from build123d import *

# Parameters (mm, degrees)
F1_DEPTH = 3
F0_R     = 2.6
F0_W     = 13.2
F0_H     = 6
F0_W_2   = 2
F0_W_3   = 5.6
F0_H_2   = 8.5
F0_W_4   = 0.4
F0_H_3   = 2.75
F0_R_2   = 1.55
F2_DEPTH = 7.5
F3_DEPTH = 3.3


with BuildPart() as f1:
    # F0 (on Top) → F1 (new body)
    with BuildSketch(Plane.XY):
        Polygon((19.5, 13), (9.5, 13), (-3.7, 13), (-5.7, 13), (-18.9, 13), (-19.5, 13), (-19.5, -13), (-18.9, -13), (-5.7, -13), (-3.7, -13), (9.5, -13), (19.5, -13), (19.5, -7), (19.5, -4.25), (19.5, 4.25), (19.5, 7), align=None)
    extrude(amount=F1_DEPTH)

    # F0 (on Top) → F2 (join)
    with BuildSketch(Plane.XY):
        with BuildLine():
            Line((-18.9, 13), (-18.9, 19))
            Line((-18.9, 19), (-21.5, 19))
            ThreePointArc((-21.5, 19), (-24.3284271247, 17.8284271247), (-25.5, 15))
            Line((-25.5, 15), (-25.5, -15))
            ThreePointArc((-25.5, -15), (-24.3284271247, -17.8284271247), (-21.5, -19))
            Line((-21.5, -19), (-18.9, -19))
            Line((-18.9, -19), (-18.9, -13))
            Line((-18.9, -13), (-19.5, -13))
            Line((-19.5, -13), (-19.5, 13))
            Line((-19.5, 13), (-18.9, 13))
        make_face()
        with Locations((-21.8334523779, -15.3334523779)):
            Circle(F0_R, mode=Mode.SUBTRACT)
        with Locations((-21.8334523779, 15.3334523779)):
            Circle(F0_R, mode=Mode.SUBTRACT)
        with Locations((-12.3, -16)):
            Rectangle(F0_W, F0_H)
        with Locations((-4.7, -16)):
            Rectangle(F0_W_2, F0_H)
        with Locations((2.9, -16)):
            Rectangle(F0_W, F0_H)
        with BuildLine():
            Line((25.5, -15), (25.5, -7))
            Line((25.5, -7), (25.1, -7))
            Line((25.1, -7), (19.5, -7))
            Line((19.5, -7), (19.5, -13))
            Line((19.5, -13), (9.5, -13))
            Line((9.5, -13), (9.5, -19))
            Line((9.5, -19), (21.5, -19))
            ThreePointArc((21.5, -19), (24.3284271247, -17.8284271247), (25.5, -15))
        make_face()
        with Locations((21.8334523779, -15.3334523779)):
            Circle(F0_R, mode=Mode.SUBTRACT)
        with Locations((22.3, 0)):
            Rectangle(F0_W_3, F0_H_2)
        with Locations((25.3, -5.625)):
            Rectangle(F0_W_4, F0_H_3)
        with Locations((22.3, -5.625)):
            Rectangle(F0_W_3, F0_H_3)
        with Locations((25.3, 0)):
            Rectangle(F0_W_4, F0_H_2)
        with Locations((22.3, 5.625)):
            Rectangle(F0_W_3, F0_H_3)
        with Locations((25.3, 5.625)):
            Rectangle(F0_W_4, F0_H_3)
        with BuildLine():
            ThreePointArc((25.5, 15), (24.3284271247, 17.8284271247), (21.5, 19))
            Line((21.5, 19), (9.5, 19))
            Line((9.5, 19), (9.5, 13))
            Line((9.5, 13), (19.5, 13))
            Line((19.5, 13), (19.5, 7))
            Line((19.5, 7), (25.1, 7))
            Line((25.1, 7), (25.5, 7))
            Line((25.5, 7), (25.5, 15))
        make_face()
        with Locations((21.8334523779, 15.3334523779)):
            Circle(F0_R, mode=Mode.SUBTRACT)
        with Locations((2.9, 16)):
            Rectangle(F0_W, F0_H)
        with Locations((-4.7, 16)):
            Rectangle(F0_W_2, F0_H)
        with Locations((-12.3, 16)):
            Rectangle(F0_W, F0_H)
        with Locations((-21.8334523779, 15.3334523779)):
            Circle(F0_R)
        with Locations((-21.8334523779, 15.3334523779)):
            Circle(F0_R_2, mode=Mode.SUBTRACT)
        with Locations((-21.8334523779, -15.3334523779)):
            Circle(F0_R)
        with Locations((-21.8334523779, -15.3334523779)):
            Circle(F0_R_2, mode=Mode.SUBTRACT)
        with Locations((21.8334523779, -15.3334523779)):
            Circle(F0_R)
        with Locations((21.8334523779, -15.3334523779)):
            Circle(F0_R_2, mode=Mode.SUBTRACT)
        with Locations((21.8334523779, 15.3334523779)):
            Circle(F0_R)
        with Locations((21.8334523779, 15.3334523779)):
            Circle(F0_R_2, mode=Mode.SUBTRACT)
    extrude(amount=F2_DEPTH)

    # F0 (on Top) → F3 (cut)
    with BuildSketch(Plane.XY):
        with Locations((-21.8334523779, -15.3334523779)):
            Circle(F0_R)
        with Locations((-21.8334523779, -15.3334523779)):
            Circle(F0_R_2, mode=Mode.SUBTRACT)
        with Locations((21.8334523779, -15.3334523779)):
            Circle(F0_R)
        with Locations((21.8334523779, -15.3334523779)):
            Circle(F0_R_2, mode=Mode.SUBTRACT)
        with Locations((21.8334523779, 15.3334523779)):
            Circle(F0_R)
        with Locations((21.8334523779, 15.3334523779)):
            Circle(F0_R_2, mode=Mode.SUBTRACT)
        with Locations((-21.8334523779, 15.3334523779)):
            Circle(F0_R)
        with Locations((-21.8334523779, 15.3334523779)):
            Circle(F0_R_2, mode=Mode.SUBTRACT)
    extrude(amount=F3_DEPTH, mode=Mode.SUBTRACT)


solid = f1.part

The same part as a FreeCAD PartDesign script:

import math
import FreeCAD as App
import Part
import Sketcher


def add_polygon(sketch, points):
    """Adds a closed chain of lines whose ends are joined by coincident constraints."""
    first, n = sketch.GeometryCount, len(points)
    for a, b in zip(points, points[1:] + points[:1]):
        sketch.addGeometry(Part.LineSegment(App.Vector(*a, 0), App.Vector(*b, 0)), False)
    for i in range(n):
        sketch.addConstraint(Sketcher.Constraint("Coincident", first + i, 2, first + (i + 1) % n, 1))

doc = App.newDocument("Part")
body = doc.addObject("PartDesign::Body", "Body")

# Sketch on XY plane
sketch1 = body.newObject("Sketcher::SketchObject", "Sketch")
sketch1.AttachmentSupport = (doc.getObject("XY_Plane"), [""])
sketch1.MapMode = "FlatFace"
add_polygon(sketch1, [(20, 13), (-20, 13), (-20, -13), (20, -13)])  # lines 0-3
sketch1.addConstraint([
    Sketcher.Constraint("Horizontal", 0),
    Sketcher.Constraint("Vertical", 1),
    Sketcher.Constraint("Horizontal", 2),
    Sketcher.Constraint("Vertical", 3),
    Sketcher.Constraint("Symmetric", 0, 2, 2, 2, -1, 1),
    Sketcher.Constraint("DistanceX", 0, 2, 0, 1, 39.0),
    Sketcher.Constraint("DistanceY", 1, 2, 1, 1, 26.0),
])
pad1 = body.newObject("PartDesign::Pad", "Pad")
pad1.Profile = sketch1
pad1.Length = 3

# Sketch on XY plane
sketch2 = body.newObject("Sketcher::SketchObject", "Sketch001")
sketch2.AttachmentSupport = (doc.getObject("XY_Plane"), [""])
sketch2.MapMode = "FlatFace"
sketch2.addGeometry(Part.ArcOfCircle(Part.Circle(App.Vector(-21.5, 15, 0), App.Vector(0, 0, 1), 4), math.radians(90), math.radians(180)), False)  # 0
sketch2.addGeometry(Part.LineSegment(App.Vector(-25.5, 15, 0), App.Vector(-25.5, -15, 0)), False)  # 1
sketch2.addGeometry(Part.ArcOfCircle(Part.Circle(App.Vector(-21.5, -15, 0), App.Vector(0, 0, 1), 4), math.radians(180), math.radians(270)), False)  # 2
sketch2.addGeometry(Part.LineSegment(App.Vector(-21.5, -19, 0), App.Vector(21.5, -19, 0)), False)  # 3
sketch2.addGeometry(Part.ArcOfCircle(Part.Circle(App.Vector(21.5, -15, 0), App.Vector(0, 0, 1), 4), math.radians(-90), math.radians(0)), False)  # 4
sketch2.addGeometry(Part.LineSegment(App.Vector(25.5, -15, 0), App.Vector(25.5, 15, 0)), False)  # 5
sketch2.addGeometry(Part.ArcOfCircle(Part.Circle(App.Vector(21.5, 15, 0), App.Vector(0, 0, 1), 4), math.radians(0), math.radians(90)), False)  # 6
sketch2.addGeometry(Part.LineSegment(App.Vector(21.5, 19, 0), App.Vector(-21.5, 19, 0)), False)  # 7
sketch2.addGeometry(Part.Circle(App.Vector(-21.8, -15.3, 0), App.Vector(0, 0, 1), 1.6), False)  # 8
sketch2.addGeometry(Part.Circle(App.Vector(21.8, -15.3, 0), App.Vector(0, 0, 1), 1.6), False)  # 9
sketch2.addGeometry(Part.Circle(App.Vector(-21.8, 15.3, 0), App.Vector(0, 0, 1), 1.6), False)  # 10
add_polygon(sketch2, [(19.5, 13), (19.5, -13), (-19.5, -13), (-19.5, 13)])  # lines 11-14
sketch2.addGeometry(Part.Circle(App.Vector(21.8, 15.3, 0), App.Vector(0, 0, 1), 1.6), False)  # 15
sketch2.addConstraint([
    Sketcher.Constraint("Tangent", 0, 2, 1, 1),
    Sketcher.Constraint("Tangent", 1, 2, 2, 1),
    Sketcher.Constraint("Tangent", 2, 2, 3, 1),
    Sketcher.Constraint("Tangent", 3, 2, 4, 1),
    Sketcher.Constraint("Tangent", 4, 2, 5, 1),
    Sketcher.Constraint("Tangent", 5, 2, 6, 1),
    Sketcher.Constraint("Tangent", 6, 2, 7, 1),
    Sketcher.Constraint("Tangent", 7, 2, 0, 1),
    Sketcher.Constraint("Vertical", 1),
    Sketcher.Constraint("Horizontal", 3),
    Sketcher.Constraint("Vertical", 5),
    Sketcher.Constraint("Horizontal", 7),
    Sketcher.Constraint("Vertical", 11),
    Sketcher.Constraint("Horizontal", 12),
    Sketcher.Constraint("Vertical", 13),
    Sketcher.Constraint("Horizontal", 14),
    Sketcher.Constraint("Equal", 0, 2),
    Sketcher.Constraint("Equal", 2, 4),
    Sketcher.Constraint("Equal", 4, 6),
    Sketcher.Constraint("Equal", 8, 9),
    Sketcher.Constraint("Equal", 9, 10),
    Sketcher.Constraint("Equal", 10, 15),
    Sketcher.Constraint("Symmetric", 0, 3, 4, 3, -1, 1),
    Sketcher.Constraint("Symmetric", 9, 3, 10, 3, -1, 1),
    Sketcher.Constraint("Symmetric", 8, 3, 15, 3, -1, 1),
    Sketcher.Constraint("Symmetric", 11, 2, 13, 2, -1, 1),
    Sketcher.Constraint("Symmetric", 8, 3, 9, 3, -2),
    Sketcher.Constraint("Radius", 0, 4.0),
    Sketcher.Constraint("Diameter", 8, 3.1),
    Sketcher.Constraint("DistanceX", 3, 1, 3, 2, 43.0),
    Sketcher.Constraint("DistanceX", 12, 2, 12, 1, 39.0),
    Sketcher.Constraint("DistanceY", 1, 2, 1, 1, 30.0),
    Sketcher.Constraint("DistanceY", 11, 2, 11, 1, 26.0),
    Sketcher.Constraint("DistanceX", 8, 3, -1, 1, 21.833452),
    Sketcher.Constraint("DistanceY", 8, 3, -1, 1, 15.333452),
])
pad2 = body.newObject("PartDesign::Pad", "Pad001")
pad2.Profile = sketch2
pad2.Length = 7.5

# Sketch on XY plane
sketch3 = body.newObject("Sketcher::SketchObject", "Sketch002")
sketch3.AttachmentSupport = (doc.getObject("XY_Plane"), [""])
sketch3.MapMode = "FlatFace"
sketch3.addGeometry([
    Part.Circle(App.Vector(-21.8, -15.3, 0), App.Vector(0, 0, 1), 2.6),  # 0
    Part.Circle(App.Vector(-21.8, -15.3, 0), App.Vector(0, 0, 1), 1.6),  # 1
    Part.Circle(App.Vector(21.8, -15.3, 0), App.Vector(0, 0, 1), 2.6),  # 2
    Part.Circle(App.Vector(21.8, -15.3, 0), App.Vector(0, 0, 1), 1.6),  # 3
    Part.Circle(App.Vector(21.8, 15.3, 0), App.Vector(0, 0, 1), 2.6),  # 4
    Part.Circle(App.Vector(21.8, 15.3, 0), App.Vector(0, 0, 1), 1.6),  # 5
    Part.Circle(App.Vector(-21.8, 15.3, 0), App.Vector(0, 0, 1), 2.6),  # 6
    Part.Circle(App.Vector(-21.8, 15.3, 0), App.Vector(0, 0, 1), 1.6),  # 7
], False)
sketch3.addConstraint([
    Sketcher.Constraint("Coincident", 1, 3, 0, 3),
    Sketcher.Constraint("Coincident", 3, 3, 2, 3),
    Sketcher.Constraint("Coincident", 5, 3, 4, 3),
    Sketcher.Constraint("Coincident", 7, 3, 6, 3),
    Sketcher.Constraint("Equal", 0, 2),
    Sketcher.Constraint("Equal", 1, 3),
    Sketcher.Constraint("Equal", 2, 4),
    Sketcher.Constraint("Equal", 3, 5),
    Sketcher.Constraint("Equal", 4, 6),
    Sketcher.Constraint("Equal", 5, 7),
    Sketcher.Constraint("Symmetric", 0, 3, 4, 3, -1, 1),
    Sketcher.Constraint("Symmetric", 2, 3, 6, 3, -1, 1),
    Sketcher.Constraint("Symmetric", 0, 3, 2, 3, -2),
    Sketcher.Constraint("Diameter", 0, 5.2),
    Sketcher.Constraint("Diameter", 1, 3.1),
    Sketcher.Constraint("DistanceX", 0, 3, -1, 1, 21.833452),
    Sketcher.Constraint("DistanceY", 0, 3, -1, 1, 15.333452),
])
pocket1 = body.newObject("PartDesign::Pocket", "Pocket")
pocket1.Profile = sketch3
pocket1.Length = 3.3
pocket1.Reversed = True

doc.recompute()
